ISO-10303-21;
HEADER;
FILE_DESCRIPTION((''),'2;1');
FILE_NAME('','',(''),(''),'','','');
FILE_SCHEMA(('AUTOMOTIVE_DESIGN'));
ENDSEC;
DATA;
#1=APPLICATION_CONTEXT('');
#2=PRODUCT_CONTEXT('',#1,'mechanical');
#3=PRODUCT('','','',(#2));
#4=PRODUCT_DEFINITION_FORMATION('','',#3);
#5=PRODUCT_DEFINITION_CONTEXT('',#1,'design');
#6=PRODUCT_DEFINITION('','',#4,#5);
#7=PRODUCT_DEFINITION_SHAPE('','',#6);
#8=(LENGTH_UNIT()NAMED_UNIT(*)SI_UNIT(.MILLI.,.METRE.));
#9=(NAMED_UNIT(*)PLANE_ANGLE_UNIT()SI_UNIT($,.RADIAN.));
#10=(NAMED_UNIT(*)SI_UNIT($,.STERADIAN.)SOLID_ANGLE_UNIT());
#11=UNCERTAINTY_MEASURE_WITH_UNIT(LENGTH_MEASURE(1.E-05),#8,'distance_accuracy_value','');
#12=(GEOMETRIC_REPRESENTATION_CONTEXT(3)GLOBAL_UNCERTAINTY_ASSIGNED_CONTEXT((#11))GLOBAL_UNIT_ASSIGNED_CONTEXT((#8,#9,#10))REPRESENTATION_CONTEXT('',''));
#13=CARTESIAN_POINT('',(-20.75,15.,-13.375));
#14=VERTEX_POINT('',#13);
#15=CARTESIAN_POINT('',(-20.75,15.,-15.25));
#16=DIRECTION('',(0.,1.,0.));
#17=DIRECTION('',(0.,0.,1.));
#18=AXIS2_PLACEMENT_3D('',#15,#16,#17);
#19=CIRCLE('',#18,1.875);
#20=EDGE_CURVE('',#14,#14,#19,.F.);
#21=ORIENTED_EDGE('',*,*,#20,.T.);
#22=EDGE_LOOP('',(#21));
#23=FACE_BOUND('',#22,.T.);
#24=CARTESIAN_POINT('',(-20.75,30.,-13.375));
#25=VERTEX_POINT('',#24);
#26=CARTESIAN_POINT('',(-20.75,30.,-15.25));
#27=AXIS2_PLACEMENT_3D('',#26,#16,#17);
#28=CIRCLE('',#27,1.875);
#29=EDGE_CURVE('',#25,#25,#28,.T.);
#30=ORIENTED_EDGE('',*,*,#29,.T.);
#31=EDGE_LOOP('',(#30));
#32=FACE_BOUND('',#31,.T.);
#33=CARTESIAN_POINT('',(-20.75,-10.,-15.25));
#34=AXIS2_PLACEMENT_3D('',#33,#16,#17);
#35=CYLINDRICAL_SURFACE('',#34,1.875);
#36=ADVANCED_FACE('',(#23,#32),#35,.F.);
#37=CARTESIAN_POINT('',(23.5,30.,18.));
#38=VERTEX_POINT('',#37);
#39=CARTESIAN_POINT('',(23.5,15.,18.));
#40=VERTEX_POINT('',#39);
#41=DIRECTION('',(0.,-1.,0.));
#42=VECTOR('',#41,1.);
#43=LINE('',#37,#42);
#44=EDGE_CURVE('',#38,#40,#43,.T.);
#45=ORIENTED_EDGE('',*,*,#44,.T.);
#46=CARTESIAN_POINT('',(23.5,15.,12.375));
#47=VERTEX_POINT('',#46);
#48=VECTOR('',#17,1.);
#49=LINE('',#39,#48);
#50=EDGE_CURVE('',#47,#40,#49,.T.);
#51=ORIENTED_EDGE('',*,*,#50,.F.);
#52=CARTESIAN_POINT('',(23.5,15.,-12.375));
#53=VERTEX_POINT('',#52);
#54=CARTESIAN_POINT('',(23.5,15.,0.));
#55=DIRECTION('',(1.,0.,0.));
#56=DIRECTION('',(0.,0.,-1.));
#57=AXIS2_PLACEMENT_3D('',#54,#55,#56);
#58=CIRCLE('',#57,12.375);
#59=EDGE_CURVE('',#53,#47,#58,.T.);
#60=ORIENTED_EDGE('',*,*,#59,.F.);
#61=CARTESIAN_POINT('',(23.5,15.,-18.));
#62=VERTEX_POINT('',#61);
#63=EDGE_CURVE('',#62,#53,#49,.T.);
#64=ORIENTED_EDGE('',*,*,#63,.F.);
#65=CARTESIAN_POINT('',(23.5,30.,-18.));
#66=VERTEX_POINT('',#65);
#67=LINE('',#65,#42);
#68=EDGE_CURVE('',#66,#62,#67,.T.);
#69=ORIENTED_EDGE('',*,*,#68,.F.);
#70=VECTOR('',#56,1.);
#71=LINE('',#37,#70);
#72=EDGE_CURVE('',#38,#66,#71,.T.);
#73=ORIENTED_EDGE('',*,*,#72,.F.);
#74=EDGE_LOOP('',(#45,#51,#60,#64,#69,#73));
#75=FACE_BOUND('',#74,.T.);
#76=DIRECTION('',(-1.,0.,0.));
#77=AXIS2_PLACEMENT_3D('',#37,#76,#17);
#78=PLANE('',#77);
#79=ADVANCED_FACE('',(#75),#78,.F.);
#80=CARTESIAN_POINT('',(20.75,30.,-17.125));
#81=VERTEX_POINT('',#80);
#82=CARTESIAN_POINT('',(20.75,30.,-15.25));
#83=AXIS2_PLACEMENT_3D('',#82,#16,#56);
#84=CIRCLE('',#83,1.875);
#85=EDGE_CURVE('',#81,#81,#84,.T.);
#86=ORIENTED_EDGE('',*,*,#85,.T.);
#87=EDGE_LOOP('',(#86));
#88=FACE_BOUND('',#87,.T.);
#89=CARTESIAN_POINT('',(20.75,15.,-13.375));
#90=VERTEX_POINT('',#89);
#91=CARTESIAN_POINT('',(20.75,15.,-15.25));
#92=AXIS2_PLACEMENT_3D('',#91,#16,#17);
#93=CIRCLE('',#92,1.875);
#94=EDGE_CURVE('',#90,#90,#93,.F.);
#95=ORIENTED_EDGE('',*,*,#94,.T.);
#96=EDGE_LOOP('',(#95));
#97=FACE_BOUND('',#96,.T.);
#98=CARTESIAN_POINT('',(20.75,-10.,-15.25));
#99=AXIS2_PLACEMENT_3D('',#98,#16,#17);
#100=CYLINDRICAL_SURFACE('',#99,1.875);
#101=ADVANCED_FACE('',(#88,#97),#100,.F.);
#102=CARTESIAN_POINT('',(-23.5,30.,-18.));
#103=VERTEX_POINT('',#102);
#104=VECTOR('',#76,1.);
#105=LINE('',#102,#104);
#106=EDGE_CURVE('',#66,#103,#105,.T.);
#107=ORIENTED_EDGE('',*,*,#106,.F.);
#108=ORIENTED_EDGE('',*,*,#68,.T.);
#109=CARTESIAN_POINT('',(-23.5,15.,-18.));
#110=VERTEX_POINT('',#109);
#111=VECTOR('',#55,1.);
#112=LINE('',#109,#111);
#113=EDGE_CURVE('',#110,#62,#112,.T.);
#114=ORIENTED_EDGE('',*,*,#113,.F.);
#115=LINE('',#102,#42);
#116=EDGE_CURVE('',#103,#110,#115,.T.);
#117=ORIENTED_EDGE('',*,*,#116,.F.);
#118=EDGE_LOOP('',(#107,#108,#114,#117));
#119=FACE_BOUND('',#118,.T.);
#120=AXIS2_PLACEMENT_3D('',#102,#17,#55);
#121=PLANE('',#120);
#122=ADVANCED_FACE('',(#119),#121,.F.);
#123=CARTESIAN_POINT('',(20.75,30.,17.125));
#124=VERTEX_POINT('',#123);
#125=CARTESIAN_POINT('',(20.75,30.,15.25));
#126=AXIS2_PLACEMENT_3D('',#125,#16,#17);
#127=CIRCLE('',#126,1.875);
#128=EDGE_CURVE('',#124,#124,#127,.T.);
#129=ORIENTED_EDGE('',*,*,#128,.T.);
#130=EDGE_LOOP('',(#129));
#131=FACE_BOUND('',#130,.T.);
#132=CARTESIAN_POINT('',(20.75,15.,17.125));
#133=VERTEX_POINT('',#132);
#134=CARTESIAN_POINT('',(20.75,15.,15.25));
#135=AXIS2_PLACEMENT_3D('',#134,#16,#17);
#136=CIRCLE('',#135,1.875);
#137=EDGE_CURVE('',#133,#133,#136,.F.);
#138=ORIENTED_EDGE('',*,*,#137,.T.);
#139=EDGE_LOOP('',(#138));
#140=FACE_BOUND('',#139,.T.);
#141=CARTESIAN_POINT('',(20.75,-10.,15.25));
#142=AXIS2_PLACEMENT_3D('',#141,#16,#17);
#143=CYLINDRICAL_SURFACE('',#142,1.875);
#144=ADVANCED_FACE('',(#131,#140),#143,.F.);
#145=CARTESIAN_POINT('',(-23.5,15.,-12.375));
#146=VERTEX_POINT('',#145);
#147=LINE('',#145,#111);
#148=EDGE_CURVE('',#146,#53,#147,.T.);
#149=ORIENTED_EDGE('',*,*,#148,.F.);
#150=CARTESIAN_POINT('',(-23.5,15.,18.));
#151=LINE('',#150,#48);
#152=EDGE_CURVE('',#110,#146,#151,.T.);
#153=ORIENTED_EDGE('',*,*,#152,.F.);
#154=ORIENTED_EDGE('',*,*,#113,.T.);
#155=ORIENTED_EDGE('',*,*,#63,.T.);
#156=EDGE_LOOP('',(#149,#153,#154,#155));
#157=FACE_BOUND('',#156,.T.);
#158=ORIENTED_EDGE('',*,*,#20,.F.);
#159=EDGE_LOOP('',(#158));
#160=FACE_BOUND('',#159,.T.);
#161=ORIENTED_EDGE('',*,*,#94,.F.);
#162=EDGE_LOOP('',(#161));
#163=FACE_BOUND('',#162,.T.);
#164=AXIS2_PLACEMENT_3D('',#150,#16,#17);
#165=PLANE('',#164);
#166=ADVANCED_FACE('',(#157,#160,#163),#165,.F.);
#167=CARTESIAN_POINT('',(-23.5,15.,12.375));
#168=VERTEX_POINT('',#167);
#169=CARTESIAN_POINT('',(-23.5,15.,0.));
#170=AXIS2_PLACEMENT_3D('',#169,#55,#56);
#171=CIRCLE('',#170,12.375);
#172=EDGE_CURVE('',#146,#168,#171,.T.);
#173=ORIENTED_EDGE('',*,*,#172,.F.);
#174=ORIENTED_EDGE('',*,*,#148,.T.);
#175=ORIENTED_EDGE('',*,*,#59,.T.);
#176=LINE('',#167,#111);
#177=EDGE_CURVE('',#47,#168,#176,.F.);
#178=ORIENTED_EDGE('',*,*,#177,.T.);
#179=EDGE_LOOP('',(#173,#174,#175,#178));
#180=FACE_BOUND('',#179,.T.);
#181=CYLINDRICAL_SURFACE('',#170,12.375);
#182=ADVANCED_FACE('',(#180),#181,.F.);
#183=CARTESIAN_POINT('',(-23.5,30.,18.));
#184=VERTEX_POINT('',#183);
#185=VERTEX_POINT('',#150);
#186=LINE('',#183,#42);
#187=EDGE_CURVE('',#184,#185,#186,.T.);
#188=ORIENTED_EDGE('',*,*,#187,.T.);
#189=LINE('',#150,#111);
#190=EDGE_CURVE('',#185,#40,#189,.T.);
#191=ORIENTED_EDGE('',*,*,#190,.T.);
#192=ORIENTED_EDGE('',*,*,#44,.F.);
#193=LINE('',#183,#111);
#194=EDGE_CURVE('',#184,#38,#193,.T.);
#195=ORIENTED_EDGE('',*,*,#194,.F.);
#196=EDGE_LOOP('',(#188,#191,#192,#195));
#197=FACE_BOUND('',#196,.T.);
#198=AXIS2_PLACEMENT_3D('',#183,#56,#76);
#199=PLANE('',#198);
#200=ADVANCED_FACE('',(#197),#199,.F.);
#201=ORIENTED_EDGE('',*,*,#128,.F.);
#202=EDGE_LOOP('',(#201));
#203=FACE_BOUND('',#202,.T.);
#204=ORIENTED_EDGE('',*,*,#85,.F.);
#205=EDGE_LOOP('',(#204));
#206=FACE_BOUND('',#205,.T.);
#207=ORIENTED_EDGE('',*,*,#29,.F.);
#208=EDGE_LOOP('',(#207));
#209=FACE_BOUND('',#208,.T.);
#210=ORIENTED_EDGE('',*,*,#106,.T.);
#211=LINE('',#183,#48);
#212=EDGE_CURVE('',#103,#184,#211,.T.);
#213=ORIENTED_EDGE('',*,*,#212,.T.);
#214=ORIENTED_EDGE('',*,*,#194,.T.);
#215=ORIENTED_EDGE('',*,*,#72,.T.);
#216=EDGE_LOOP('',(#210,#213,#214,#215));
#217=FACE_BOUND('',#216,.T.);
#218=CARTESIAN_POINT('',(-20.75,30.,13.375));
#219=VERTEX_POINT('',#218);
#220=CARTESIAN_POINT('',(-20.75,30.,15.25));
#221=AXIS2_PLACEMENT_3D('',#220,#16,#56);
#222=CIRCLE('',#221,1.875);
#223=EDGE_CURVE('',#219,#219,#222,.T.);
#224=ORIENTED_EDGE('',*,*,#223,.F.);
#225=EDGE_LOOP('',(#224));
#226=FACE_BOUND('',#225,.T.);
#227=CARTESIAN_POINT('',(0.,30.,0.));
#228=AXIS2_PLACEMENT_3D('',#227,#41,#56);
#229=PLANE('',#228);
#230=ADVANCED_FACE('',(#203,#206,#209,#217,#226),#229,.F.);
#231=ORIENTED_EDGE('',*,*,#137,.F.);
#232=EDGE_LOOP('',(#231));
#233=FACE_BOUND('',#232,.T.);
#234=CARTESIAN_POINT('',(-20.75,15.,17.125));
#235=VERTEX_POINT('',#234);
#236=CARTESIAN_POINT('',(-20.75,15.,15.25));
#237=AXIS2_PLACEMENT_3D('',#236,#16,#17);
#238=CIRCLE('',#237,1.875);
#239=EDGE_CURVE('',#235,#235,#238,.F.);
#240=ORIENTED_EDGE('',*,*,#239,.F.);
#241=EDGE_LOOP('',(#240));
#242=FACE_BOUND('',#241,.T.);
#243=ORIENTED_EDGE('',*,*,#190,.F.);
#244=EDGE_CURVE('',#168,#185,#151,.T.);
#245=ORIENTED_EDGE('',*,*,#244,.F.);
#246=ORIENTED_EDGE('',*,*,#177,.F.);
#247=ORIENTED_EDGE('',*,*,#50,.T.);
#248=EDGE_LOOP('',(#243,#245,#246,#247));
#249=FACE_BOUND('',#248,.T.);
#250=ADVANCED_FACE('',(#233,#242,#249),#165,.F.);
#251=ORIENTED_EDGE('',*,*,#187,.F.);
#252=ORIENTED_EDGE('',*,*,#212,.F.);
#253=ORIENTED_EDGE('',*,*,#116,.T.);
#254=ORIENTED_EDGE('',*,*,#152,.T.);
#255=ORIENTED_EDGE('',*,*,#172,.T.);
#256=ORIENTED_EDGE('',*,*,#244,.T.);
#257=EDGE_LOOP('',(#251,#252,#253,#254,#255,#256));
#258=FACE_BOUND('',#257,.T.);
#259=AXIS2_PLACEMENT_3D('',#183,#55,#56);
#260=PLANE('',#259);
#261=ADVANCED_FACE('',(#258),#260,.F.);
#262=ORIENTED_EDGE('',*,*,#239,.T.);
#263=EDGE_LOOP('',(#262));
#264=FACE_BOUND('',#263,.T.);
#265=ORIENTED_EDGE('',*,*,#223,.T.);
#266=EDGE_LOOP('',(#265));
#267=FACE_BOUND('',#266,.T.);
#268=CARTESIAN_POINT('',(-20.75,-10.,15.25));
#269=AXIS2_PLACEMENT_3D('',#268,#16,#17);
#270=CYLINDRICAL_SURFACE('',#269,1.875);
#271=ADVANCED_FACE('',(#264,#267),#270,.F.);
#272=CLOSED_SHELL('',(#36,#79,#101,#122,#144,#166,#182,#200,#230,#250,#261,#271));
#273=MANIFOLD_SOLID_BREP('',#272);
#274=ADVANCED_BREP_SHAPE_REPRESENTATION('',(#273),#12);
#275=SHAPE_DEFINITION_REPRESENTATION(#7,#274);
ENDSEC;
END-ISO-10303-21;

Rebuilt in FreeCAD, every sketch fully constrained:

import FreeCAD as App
import Part
import Sketcher
from FreeCAD import Vector

doc = App.newDocument("Part")
body = doc.addObject("PartDesign::Body", "Body")

# Sketch on XZ plane
sketch1 = doc.addObject("Sketcher::SketchObject", "Sketch")
body.addObject(sketch1)
sketch1.AttachmentSupport = (doc.XZ_Plane, [""])
sketch1.MapMode = "FlatFace"
sketch1.addGeometry([
    Part.LineSegment(Vector(-23.5, -18, 0), Vector(-23.5, 18, 0)),
    Part.LineSegment(Vector(-23.5, 18, 0), Vector(23.5, 18, 0)),
    Part.LineSegment(Vector(23.5, 18, 0), Vector(23.5, -18, 0)),
    Part.LineSegment(Vector(23.5, -18, 0), Vector(-23.5, -18, 0)),
], False)
sketch1.addConstraint([
    Sketcher.Constraint("Coincident", 0, 2, 1, 1),
    Sketcher.Constraint("Coincident", 1, 2, 2, 1),
    Sketcher.Constraint("Coincident", 2, 2, 3, 1),
    Sketcher.Constraint("Coincident", 3, 2, 0, 1),
    Sketcher.Constraint("Vertical", 0),
    Sketcher.Constraint("Horizontal", 1),
    Sketcher.Constraint("Vertical", 2),
    Sketcher.Constraint("Horizontal", 3),
    Sketcher.Constraint("Symmetric", 0, 2, 2, 2, -1, 1),
    Sketcher.Constraint("DistanceX", 1, 1, 1, 2, 47.0),
    Sketcher.Constraint("DistanceY", 0, 1, 0, 2, 36.0),
])
pad1 = doc.addObject("PartDesign::Pad", "Pad")
body.addObject(pad1)
pad1.Profile = sketch1
pad1.Length = 30
pad1.Reversed = True

# Sketch on YZ plane
sketch2 = doc.addObject("Sketcher::SketchObject", "Sketch001")
body.addObject(sketch2)
sketch2.AttachmentSupport = (doc.YZ_Plane, [""])
sketch2.MapMode = "FlatFace"
sketch2.AttachmentOffset = App.Placement(Vector(0, 0, 23.5), App.Rotation())
sketch2.addGeometry(Part.Circle(Vector(15, 0, 0), Vector(0, 0, 1), 12.375), False)
sketch2.addConstraint([
    Sketcher.Constraint("PointOnObject", 0, 3, -1),
    Sketcher.Constraint("Diameter", 0, 24.75),
    Sketcher.Constraint("DistanceX", -1, 1, 0, 3, 15.0),
])
pocket1 = doc.addObject("PartDesign::Pocket", "Pocket")
body.addObject(pocket1)
pocket1.Profile = sketch2
pocket1.Length = 47

# Sketch on XZ plane
sketch3 = doc.addObject("Sketcher::SketchObject", "Sketch002")
body.addObject(sketch3)
sketch3.AttachmentSupport = (doc.XZ_Plane, [""])
sketch3.MapMode = "FlatFace"
sketch3.AttachmentOffset = App.Placement(Vector(0, 0, -30), App.Rotation())
sketch3.addGeometry([
    Part.Circle(Vector(-20.75, -15.25, 0), Vector(0, 0, 1), 1.875),
    Part.Circle(Vector(-20.75, 15.25, 0), Vector(0, 0, 1), 1.875),
    Part.Circle(Vector(20.75, 15.25, 0), Vector(0, 0, 1), 1.875),
    Part.Circle(Vector(20.75, -15.25, 0), Vector(0, 0, 1), 1.875),
], False)
sketch3.addConstraint([
    Sketcher.Constraint("Equal", 0, 1),
    Sketcher.Constraint("Equal", 1, 2),
    Sketcher.Constraint("Equal", 2, 3),
    Sketcher.Constraint("Symmetric", 0, 3, 2, 3, -1, 1),
    Sketcher.Constraint("Symmetric", 1, 3, 3, 3, -1, 1),
    Sketcher.Constraint("Symmetric", 1, 3, 2, 3, -2),
    Sketcher.Constraint("Diameter", 0, 3.75),
    Sketcher.Constraint("DistanceY", 0, 3, 1, 3, 30.5),
    Sketcher.Constraint("DistanceX", 1, 3, 2, 3, 41.5),
])
pocket2 = doc.addObject("PartDesign::Pocket", "Pocket001")
body.addObject(pocket2)
pocket2.Profile = sketch3
pocket2.Length = 40
pocket2.Reversed = True

# Sketch on YZ plane
sketch4 = doc.addObject("Sketcher::SketchObject", "Sketch003")
body.addObject(sketch4)
sketch4.AttachmentSupport = (doc.YZ_Plane, [""])
sketch4.MapMode = "FlatFace"
sketch4.AttachmentOffset = App.Placement(Vector(0, 0, 23.5), App.Rotation())
sketch4.addGeometry([
    Part.LineSegment(Vector(15, 18, 0), Vector(0, 18, 0)),
    Part.LineSegment(Vector(0, 18, 0), Vector(0, -18, 0)),
    Part.LineSegment(Vector(0, -18, 0), Vector(15, -18, 0)),
    Part.LineSegment(Vector(15, -18, 0), Vector(15, 18, 0)),
], False)
sketch4.addConstraint([
    Sketcher.Constraint("Coincident", 0, 2, 1, 1),
    Sketcher.Constraint("Coincident", 1, 2, 2, 1),
    Sketcher.Constraint("Coincident", 2, 2, 3, 1),
    Sketcher.Constraint("Coincident", 3, 2, 0, 1),
    Sketcher.Constraint("Horizontal", 0),
    Sketcher.Constraint("Vertical", 1),
    Sketcher.Constraint("Horizontal", 2),
    Sketcher.Constraint("Vertical", 3),
    Sketcher.Constraint("Symmetric", 0, 2, 1, 2, -1, 1),
    Sketcher.Constraint("DistanceX", 0, 2, 0, 1, 15.0),
    Sketcher.Constraint("DistanceY", 1, 2, 1, 1, 36.0),
])
pocket3 = doc.addObject("PartDesign::Pocket", "Pocket002")
body.addObject(pocket3)
pocket3.Profile = sketch4
pocket3.Type = "ThroughAll"

doc.recompute()
